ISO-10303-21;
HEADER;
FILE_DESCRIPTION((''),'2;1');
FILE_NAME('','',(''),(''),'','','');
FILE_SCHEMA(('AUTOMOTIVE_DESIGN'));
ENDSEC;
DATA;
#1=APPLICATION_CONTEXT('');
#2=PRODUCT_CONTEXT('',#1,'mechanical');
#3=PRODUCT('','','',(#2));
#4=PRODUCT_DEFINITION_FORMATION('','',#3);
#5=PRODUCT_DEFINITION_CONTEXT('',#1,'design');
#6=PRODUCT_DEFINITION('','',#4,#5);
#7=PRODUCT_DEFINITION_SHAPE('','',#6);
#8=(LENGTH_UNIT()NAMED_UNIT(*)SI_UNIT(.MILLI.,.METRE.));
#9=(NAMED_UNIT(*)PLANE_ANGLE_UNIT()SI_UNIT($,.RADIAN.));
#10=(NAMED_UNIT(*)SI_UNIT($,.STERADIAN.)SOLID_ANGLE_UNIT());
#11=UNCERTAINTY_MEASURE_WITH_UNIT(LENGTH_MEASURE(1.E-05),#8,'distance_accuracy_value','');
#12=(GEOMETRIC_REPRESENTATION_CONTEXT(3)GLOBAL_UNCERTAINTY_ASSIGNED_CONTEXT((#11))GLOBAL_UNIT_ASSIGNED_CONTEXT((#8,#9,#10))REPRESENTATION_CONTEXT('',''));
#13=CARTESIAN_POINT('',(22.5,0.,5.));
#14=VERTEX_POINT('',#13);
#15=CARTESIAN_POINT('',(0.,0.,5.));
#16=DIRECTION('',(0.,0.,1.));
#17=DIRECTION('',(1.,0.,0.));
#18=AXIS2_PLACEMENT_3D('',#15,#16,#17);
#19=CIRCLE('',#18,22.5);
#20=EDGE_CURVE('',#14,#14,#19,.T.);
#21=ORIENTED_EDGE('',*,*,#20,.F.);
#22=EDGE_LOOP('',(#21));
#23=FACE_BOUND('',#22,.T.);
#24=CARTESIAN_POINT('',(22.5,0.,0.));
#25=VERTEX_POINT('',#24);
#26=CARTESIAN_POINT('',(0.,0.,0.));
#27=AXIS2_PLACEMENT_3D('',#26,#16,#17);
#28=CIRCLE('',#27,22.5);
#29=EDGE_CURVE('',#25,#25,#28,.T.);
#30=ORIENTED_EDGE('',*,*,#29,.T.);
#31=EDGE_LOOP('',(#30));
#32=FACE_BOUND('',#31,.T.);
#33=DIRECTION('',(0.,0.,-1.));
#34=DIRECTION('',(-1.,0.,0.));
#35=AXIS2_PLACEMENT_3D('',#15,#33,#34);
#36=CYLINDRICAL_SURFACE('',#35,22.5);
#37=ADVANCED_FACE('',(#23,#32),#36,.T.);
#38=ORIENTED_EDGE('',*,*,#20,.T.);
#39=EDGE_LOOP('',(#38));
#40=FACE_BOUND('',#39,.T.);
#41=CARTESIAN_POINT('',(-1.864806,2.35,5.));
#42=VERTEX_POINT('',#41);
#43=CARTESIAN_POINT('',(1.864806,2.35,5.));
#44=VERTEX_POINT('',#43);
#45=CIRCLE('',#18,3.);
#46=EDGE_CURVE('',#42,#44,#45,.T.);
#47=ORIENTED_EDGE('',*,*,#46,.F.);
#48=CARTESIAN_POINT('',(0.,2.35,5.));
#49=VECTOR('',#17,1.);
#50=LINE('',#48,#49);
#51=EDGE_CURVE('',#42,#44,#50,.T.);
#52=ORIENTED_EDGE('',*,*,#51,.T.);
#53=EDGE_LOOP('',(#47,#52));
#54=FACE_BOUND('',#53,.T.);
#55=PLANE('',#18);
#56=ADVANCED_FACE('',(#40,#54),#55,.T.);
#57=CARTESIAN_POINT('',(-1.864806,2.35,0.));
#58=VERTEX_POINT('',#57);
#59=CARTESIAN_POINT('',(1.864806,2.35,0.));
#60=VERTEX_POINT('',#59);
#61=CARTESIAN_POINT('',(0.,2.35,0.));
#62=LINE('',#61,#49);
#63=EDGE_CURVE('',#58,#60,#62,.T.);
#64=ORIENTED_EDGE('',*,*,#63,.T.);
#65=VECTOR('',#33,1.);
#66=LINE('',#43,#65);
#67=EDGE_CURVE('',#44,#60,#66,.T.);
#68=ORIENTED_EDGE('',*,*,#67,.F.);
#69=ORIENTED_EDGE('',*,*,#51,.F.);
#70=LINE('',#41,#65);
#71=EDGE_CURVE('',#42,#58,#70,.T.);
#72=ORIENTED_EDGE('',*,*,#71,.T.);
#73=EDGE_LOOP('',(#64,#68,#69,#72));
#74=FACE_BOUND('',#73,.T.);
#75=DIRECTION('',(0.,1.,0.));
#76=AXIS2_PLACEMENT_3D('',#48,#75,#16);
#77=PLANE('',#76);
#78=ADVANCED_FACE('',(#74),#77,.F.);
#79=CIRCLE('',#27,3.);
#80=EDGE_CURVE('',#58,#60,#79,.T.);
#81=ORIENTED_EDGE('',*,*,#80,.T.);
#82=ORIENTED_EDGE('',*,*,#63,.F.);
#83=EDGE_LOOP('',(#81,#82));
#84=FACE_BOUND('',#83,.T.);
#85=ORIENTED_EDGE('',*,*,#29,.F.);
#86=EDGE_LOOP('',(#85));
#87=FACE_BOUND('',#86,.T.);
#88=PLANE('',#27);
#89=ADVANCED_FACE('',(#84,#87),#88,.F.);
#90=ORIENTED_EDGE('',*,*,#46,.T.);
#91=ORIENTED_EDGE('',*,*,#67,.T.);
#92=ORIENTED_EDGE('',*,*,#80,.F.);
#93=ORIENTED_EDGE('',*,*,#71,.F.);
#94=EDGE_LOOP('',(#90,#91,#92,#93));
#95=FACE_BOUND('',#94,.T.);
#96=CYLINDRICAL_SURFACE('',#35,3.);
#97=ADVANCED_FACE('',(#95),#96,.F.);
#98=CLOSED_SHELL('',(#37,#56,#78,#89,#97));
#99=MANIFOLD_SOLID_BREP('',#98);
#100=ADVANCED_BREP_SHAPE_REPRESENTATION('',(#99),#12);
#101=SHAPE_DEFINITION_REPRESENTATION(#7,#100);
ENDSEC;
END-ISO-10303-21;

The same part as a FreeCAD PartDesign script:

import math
import FreeCAD as App
import Part
import Sketcher
from FreeCAD import Vector

doc = App.newDocument("Part")
body = doc.addObject("PartDesign::Body", "Body")

sketch1 = doc.addObject("Sketcher::SketchObject", "Sketch")
body.addObject(sketch1)
sketch1.AttachmentSupport = (doc.XY_Plane, [""])
sketch1.MapMode = "FlatFace"
sketch1.addGeometry([
    Part.Circle(Vector(0, 0, 0), Vector(0, 0, 1), 22.5),
    Part.ArcOfCircle(Part.Circle(Vector(0, 0, 0), Vector(0, 0, 1), 3), math.radians(128.433206), math.radians(411.566794)),
    Part.LineSegment(Vector(-1.864806, 2.35, 0), Vector(1.864806, 2.35, 0)),
], False)
sketch1.addConstraint([
    Sketcher.Constraint("Coincident", 1, 1, 2, 1),
    Sketcher.Constraint("Coincident", 2, 2, 1, 2),
    Sketcher.Constraint("Horizontal", 2),
    Sketcher.Constraint("Coincident", 0, 3, -1, 1),
    Sketcher.Constraint("Coincident", 1, 3, -1, 1),
    Sketcher.Constraint("Diameter", 0, 45.0),
    Sketcher.Constraint("Radius", 1, 3.0),
    Sketcher.Constraint("DistanceY", -1, 1, 1, 1, 2.35),
])
pad1 = doc.addObject("PartDesign::Pad", "Pad")
body.addObject(pad1)
pad1.Profile = sketch1
pad1.Length = 5

doc.recompute()
